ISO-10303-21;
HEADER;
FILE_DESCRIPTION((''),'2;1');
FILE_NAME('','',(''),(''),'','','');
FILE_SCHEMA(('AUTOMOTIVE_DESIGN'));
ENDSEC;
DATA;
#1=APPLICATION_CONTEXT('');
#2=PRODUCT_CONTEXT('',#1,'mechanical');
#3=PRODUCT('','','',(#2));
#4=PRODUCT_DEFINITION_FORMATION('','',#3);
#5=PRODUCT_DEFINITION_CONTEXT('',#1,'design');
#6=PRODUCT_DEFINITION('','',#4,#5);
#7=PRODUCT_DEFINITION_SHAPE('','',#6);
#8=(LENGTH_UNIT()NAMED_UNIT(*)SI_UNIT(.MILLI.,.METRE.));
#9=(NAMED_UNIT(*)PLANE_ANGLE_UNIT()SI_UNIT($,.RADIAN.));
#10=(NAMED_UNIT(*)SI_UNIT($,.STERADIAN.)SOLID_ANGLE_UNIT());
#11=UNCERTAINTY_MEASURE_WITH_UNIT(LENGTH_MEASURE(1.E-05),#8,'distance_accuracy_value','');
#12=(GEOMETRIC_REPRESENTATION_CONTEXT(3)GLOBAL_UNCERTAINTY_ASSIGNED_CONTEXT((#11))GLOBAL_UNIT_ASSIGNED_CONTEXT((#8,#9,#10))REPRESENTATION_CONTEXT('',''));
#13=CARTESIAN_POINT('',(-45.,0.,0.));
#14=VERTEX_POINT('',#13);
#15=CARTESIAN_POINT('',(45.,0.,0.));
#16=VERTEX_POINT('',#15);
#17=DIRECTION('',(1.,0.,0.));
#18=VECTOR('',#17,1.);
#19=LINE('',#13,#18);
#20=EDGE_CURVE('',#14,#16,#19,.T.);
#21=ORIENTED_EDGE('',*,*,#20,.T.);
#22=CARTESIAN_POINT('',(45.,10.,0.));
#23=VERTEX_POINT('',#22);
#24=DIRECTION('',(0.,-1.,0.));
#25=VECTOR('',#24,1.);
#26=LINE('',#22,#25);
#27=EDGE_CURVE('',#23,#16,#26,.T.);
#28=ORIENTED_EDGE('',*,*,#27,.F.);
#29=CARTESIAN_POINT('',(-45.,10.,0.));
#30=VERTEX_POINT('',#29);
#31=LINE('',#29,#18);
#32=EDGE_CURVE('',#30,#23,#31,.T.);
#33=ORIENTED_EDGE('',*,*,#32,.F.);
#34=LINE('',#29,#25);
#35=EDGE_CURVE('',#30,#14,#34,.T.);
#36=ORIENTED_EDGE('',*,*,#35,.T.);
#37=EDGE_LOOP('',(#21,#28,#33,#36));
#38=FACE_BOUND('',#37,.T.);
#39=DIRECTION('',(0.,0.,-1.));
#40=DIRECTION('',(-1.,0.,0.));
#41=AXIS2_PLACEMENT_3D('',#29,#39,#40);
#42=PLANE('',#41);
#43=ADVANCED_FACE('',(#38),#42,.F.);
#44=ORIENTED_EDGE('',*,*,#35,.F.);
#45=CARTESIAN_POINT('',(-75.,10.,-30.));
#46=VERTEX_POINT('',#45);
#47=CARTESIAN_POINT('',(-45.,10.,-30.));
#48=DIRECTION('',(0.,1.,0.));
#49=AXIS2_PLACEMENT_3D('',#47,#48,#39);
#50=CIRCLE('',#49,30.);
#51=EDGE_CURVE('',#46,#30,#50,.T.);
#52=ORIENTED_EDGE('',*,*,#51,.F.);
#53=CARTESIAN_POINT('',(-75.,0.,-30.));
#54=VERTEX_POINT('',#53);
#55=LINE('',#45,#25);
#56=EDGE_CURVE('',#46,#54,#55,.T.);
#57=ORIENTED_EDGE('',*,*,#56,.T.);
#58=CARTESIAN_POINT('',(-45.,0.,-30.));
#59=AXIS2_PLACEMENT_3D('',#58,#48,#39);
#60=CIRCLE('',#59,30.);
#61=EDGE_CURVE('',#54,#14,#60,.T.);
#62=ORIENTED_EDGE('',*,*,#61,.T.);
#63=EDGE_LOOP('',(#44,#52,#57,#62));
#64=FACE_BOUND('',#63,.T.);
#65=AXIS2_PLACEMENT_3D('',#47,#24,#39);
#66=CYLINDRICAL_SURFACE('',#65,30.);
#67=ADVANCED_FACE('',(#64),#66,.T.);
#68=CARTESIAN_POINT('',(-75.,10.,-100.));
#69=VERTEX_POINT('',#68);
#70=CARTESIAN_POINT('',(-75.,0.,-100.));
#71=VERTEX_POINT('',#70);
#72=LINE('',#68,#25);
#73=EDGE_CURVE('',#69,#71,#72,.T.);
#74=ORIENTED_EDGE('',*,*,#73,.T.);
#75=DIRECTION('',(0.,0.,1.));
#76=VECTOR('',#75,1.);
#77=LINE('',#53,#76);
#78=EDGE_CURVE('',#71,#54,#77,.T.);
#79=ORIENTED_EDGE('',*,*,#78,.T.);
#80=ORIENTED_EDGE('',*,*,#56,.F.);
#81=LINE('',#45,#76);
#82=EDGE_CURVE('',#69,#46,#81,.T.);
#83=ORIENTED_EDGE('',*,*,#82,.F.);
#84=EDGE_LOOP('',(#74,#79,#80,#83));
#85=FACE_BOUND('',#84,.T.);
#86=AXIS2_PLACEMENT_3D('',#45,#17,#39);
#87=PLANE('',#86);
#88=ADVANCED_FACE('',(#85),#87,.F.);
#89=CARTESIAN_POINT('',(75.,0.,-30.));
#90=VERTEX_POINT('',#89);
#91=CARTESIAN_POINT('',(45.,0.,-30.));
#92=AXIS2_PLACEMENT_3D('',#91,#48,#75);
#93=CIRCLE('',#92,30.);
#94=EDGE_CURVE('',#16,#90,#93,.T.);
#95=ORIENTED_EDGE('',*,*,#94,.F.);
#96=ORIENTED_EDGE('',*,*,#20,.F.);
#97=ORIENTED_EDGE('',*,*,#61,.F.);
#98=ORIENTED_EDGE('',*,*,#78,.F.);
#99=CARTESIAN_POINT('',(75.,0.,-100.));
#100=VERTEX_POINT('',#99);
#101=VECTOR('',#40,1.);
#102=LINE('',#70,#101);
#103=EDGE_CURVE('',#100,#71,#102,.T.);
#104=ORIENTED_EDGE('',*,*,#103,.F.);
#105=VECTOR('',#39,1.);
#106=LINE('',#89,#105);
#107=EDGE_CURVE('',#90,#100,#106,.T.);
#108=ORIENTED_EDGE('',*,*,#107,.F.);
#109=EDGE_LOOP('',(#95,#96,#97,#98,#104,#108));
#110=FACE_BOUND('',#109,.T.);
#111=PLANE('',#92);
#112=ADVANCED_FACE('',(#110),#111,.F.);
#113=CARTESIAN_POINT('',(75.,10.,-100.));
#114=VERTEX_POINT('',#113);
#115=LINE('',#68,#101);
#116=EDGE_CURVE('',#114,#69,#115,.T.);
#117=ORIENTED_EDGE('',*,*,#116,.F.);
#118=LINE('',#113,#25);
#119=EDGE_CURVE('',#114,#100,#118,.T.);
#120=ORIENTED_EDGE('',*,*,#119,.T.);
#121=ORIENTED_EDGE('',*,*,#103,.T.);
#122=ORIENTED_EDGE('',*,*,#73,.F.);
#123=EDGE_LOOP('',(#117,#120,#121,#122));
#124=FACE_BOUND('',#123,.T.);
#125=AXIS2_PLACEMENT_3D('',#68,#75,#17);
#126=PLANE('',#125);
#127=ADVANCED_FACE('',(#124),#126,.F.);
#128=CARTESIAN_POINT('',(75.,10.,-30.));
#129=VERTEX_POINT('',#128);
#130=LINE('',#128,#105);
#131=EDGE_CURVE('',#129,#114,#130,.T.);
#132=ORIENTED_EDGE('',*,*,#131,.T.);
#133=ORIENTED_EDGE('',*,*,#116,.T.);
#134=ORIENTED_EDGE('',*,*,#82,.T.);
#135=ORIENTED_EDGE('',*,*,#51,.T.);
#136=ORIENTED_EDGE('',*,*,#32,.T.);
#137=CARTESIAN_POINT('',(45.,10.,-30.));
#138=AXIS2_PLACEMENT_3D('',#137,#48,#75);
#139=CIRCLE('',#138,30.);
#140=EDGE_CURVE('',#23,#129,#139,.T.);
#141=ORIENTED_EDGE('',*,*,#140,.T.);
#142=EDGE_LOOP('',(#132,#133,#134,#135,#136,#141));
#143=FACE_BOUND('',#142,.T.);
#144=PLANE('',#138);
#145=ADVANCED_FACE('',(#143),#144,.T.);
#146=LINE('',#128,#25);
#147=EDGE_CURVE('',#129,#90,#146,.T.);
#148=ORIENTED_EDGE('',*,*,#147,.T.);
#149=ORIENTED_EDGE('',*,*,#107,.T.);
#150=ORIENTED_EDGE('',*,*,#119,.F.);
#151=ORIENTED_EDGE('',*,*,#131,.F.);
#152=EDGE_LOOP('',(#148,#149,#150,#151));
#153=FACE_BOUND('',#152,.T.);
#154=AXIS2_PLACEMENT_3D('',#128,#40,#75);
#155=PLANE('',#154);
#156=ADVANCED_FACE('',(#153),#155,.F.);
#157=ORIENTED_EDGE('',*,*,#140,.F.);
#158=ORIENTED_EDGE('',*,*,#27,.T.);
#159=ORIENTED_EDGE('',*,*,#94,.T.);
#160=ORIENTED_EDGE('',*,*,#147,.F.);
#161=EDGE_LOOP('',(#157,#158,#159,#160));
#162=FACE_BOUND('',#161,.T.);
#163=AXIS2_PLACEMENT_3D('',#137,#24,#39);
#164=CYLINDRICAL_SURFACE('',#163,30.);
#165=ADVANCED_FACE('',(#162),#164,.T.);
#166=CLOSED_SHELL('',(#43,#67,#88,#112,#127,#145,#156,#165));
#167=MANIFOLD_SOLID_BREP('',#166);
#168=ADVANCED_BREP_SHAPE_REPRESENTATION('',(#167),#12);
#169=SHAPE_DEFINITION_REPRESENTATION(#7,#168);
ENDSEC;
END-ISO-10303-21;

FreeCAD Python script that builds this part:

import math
import FreeCAD as App
import Part
import Sketcher

V = App.Vector
Q = App.Units.Quantity

doc = App.newDocument("Part")
body = doc.addObject("PartDesign::Body", "Body")

# Sketch on XZ plane
sketch1 = body.newObject("Sketcher::SketchObject", "Sketch")
sketch1.AttachmentSupport = (doc.getObject("XZ_Plane"), [""])
sketch1.MapMode = "FlatFace"
sketch1.addGeometry(Part.LineSegment(V(-45, 0, 0), V(45, 0, 0)), False)
sketch1.addGeometry(Part.ArcOfCircle(Part.Circle(V(45, -30, 0), V(0, 0, 1), 30), math.radians(0), math.radians(90)), False)
sketch1.addGeometry(Part.LineSegment(V(75, -30, 0), V(75, -100, 0)), False)
sketch1.addGeometry(Part.LineSegment(V(75, -100, 0), V(-75, -100, 0)), False)
sketch1.addGeometry(Part.LineSegment(V(-75, -100, 0), V(-75, -30, 0)), False)
sketch1.addGeometry(Part.ArcOfCircle(Part.Circle(V(-45, -30, 0), V(0, 0, 1), 30), math.radians(90), math.radians(180)), False)
sketch1.addConstraint(Sketcher.Constraint("Tangent", 0, 2, 1, 2))
sketch1.addConstraint(Sketcher.Constraint("Tangent", 1, 1, 2, 1))
sketch1.addConstraint(Sketcher.Constraint("Coincident", 2, 2, 3, 1))
sketch1.addConstraint(Sketcher.Constraint("Coincident", 3, 2, 4, 1))
sketch1.addConstraint(Sketcher.Constraint("Tangent", 4, 2, 5, 2))
sketch1.addConstraint(Sketcher.Constraint("Tangent", 5, 1, 0, 1))
sketch1.addConstraint(Sketcher.Constraint("Horizontal", 0))
sketch1.addConstraint(Sketcher.Constraint("Vertical", 2))
sketch1.addConstraint(Sketcher.Constraint("Horizontal", 3))
sketch1.addConstraint(Sketcher.Constraint("Vertical", 4))
sketch1.addConstraint(Sketcher.Constraint("Equal", 1, 5))
sketch1.addConstraint(Sketcher.Constraint("Symmetric", 0, 2, 5, 1, -1, 1))
sketch1.addConstraint(Sketcher.Constraint("Radius", 1, Q("30 mm")))
sketch1.addConstraint(Sketcher.Constraint("DistanceX", 0, 1, 0, 2, Q("90 mm")))
sketch1.addConstraint(Sketcher.Constraint("DistanceY", 2, 2, 2, 1, Q("70 mm")))
pad1 = body.newObject("PartDesign::Pad", "Pad")
pad1.Profile = sketch1
pad1.Length = 10
pad1.Reversed = True

doc.recompute()
